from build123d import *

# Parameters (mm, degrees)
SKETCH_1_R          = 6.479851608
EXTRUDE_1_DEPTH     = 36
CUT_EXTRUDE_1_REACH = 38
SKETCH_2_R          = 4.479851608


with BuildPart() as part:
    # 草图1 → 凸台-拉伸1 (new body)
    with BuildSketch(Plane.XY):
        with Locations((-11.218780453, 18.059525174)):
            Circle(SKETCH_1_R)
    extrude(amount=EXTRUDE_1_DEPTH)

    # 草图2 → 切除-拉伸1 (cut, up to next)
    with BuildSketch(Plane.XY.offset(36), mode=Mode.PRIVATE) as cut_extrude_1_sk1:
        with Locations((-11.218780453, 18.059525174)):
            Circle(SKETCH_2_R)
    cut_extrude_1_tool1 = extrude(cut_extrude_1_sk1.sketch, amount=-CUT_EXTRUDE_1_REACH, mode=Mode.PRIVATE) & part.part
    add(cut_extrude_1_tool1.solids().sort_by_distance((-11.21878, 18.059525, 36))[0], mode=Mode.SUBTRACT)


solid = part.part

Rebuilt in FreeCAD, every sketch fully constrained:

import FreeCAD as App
import Part
import Sketcher
from FreeCAD import Vector
Q = App.Units.Quantity

doc = App.newDocument("Part")
body = doc.addObject("PartDesign::Body", "Body")

sketch1 = body.newObject("Sketcher::SketchObject", "Sketch")
sketch1.AttachmentSupport = (doc.getObject("XY_Plane"), [""])
sketch1.MapMode = "FlatFace"
sketch1.addGeometry(Part.Circle(Vector(-11.21878, 18.059525, 0), Vector(0, 0, 1), 6.479852), False)
sketch1.addConstraint([
    Sketcher.Constraint("Diameter", 0, Q("12.959703 mm")),
    Sketcher.Constraint("DistanceX", 0, 3, -1, 1, Q("11.21878 mm")),
    Sketcher.Constraint("DistanceY", -1, 1, 0, 3, Q("18.059525 mm")),
])
pad1 = body.newObject("PartDesign::Pad", "Pad")
pad1.Profile = sketch1
pad1.Length = 36

sketch2 = body.newObject("Sketcher::SketchObject", "Sketch001")
sketch2.AttachmentSupport = (doc.getObject("XY_Plane"), [""])
sketch2.MapMode = "FlatFace"
sketch2.AttachmentOffset = App.Placement(Vector(0, 0, 36), App.Rotation())
sketch2.addGeometry(Part.Circle(Vector(-11.21878, 18.059525, 0), Vector(0, 0, 1), 4.479852), False)
sketch2.addConstraint([
    Sketcher.Constraint("Diameter", 0, Q("8.959703 mm")),
    Sketcher.Constraint("DistanceX", 0, 3, -1, 1, Q("11.21878 mm")),
    Sketcher.Constraint("DistanceY", -1, 1, 0, 3, Q("18.059525 mm")),
])
pocket1 = body.newObject("PartDesign::Pocket", "Pocket")
pocket1.Profile = sketch2
pocket1.Type = "UpToFirst"

doc.recompute()
